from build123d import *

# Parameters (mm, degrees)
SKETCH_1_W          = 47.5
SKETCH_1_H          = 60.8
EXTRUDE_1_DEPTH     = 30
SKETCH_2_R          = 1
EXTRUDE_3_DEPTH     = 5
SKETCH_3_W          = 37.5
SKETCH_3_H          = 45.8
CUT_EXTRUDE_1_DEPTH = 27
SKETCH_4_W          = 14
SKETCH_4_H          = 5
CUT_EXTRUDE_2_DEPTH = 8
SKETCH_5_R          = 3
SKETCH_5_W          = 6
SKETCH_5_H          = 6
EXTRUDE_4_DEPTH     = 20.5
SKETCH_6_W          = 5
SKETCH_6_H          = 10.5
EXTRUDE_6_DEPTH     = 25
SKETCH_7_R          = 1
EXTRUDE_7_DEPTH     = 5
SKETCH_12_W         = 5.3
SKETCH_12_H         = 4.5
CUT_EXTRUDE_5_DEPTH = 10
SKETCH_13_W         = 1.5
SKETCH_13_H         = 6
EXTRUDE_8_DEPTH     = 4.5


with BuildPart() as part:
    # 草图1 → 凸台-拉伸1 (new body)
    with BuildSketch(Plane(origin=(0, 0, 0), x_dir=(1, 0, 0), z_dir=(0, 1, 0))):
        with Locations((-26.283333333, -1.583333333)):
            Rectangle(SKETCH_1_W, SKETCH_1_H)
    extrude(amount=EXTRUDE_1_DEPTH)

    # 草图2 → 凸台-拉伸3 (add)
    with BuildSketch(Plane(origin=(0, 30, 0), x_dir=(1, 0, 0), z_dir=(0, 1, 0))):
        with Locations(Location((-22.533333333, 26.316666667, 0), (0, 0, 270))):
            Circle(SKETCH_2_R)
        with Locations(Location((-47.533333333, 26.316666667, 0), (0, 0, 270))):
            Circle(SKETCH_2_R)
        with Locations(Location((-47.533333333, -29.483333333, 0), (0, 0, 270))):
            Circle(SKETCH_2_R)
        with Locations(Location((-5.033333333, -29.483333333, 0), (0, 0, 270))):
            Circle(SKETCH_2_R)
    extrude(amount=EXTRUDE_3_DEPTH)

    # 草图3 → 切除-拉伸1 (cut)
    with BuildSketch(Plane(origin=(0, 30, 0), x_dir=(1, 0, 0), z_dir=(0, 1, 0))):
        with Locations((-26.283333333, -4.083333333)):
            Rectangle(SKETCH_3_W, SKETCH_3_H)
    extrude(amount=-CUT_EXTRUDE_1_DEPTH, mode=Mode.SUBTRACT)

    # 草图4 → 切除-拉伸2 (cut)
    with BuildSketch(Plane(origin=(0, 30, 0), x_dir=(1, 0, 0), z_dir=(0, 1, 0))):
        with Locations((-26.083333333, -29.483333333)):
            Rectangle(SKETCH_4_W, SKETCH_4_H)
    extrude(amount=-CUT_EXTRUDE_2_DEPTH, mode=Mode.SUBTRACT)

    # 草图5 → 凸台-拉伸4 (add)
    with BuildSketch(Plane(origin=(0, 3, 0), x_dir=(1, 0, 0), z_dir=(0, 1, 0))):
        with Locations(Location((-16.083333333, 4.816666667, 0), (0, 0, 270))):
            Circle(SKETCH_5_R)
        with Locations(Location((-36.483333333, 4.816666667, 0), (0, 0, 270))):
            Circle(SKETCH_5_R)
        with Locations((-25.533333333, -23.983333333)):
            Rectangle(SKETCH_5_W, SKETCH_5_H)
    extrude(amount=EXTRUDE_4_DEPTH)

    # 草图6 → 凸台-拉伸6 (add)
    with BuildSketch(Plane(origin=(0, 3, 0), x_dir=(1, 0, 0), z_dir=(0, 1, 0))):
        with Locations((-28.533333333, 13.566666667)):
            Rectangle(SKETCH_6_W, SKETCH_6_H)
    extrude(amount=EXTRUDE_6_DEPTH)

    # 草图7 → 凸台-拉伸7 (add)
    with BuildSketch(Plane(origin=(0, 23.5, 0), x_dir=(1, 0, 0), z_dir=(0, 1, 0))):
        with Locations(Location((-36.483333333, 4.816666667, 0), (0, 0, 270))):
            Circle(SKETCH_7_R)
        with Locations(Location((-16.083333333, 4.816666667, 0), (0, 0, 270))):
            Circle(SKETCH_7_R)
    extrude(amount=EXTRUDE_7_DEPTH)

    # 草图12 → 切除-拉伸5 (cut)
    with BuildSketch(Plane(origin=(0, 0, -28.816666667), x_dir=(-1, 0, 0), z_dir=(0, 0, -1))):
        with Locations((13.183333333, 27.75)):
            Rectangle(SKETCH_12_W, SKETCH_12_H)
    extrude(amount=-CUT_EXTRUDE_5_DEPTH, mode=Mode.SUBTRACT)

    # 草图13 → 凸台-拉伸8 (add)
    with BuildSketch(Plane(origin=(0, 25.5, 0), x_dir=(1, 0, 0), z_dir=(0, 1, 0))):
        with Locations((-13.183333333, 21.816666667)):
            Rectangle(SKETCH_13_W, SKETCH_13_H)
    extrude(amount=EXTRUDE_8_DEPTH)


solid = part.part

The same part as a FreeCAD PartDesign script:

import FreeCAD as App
import Part
import Sketcher
Q = App.Units.Quantity


def add_polygon(sketch, points):
    """Adds a closed chain of lines whose ends are joined by coincident constraints."""
    first, n = sketch.GeometryCount, len(points)
    for a, b in zip(points, points[1:] + points[:1]):
        sketch.addGeometry(Part.LineSegment(App.Vector(*a, 0), App.Vector(*b, 0)), False)
    for i in range(n):
        sketch.addConstraint(Sketcher.Constraint("Coincident", first + i, 2, first + (i + 1) % n, 1))

doc = App.newDocument("Part")
body = doc.addObject("PartDesign::Body", "Body")

# Sketch on XZ plane
sketch1 = body.newObject("Sketcher::SketchObject", "Sketch")
sketch1.AttachmentSupport = (doc.getObject("XZ_Plane"), [""])
sketch1.MapMode = "FlatFace"
add_polygon(sketch1, [(-50, -29), (-50, 32), (-3, 32), (-3, -29)])  # lines 0-3
sketch1.addConstraint([
    Sketcher.Constraint("Vertical", 0),
    Sketcher.Constraint("Horizontal", 1),
    Sketcher.Constraint("Vertical", 2),
    Sketcher.Constraint("Horizontal", 3),
    Sketcher.Constraint("DistanceX", 1, 1, 1, 2, Q("47.5 mm")),
    Sketcher.Constraint("DistanceY", 0, 1, 0, 2, Q("60.8 mm")),
    Sketcher.Constraint("DistanceX", 0, 2, -1, 1, Q("50.033333 mm")),
    Sketcher.Constraint("DistanceY", -1, 1, 0, 2, Q("31.983333 mm")),
])
pad1 = body.newObject("PartDesign::Pad", "Pad")
pad1.Profile = sketch1
pad1.Length = 30
pad1.Reversed = True

# Sketch on XZ plane
sketch2 = body.newObject("Sketcher::SketchObject", "Sketch001")
sketch2.AttachmentSupport = (doc.getObject("XZ_Plane"), [""])
sketch2.MapMode = "FlatFace"
sketch2.AttachmentOffset = App.Placement(App.Vector(0, 0, -30), App.Rotation())
sketch2.addGeometry([
    Part.Circle(App.Vector(-22.5, -26.3, 0), App.Vector(0, 0, 1), 1),
    Part.Circle(App.Vector(-47.5, -26.3, 0), App.Vector(0, 0, 1), 1),
    Part.Circle(App.Vector(-47.5, 29.5, 0), App.Vector(0, 0, 1), 1),
    Part.Circle(App.Vector(-5, 29.5, 0), App.Vector(0, 0, 1), 1),
], False)
sketch2.addConstraint([
    Sketcher.Constraint("Equal", 0, 1),
    Sketcher.Constraint("Equal", 1, 2),
    Sketcher.Constraint("Equal", 2, 3),
    Sketcher.Constraint("Horizontal", 0, 3, 1, 3),
    Sketcher.Constraint("Horizontal", 2, 3, 3, 3),
    Sketcher.Constraint("Vertical", 1, 3, 2, 3),
    Sketcher.Constraint("Diameter", 0, Q("2 mm")),
    Sketcher.Constraint("DistanceX", 1, 3, 0, 3, Q("25 mm")),
    Sketcher.Constraint("DistanceY", 1, 3, 2, 3, Q("55.8 mm")),
    Sketcher.Constraint("DistanceX", 2, 3, 3, 3, Q("42.5 mm")),
    Sketcher.Constraint("DistanceX", 0, 3, -1, 1, Q("22.533333 mm")),
    Sketcher.Constraint("DistanceY", 0, 3, -1, 1, Q("26.316667 mm")),
])
pad2 = body.newObject("PartDesign::Pad", "Pad001")
pad2.Profile = sketch2
pad2.Length = 5
pad2.Reversed = True

# Sketch on XZ plane
sketch3 = body.newObject("Sketcher::SketchObject", "Sketch002")
sketch3.AttachmentSupport = (doc.getObject("XZ_Plane"), [""])
sketch3.MapMode = "FlatFace"
sketch3.AttachmentOffset = App.Placement(App.Vector(0, 0, -30), App.Rotation())
add_polygon(sketch3, [(-45, -19), (-45, 27), (-8, 27), (-8, -19)])  # lines 0-3
sketch3.addConstraint([
    Sketcher.Constraint("Vertical", 0),
    Sketcher.Constraint("Horizontal", 1),
    Sketcher.Constraint("Vertical", 2),
    Sketcher.Constraint("Horizontal", 3),
    Sketcher.Constraint("DistanceX", 1, 1, 1, 2, Q("37.5 mm")),
    Sketcher.Constraint("DistanceY", 0, 1, 0, 2, Q("45.8 mm")),
    Sketcher.Constraint("DistanceX", 0, 2, -1, 1, Q("45.033333 mm")),
    Sketcher.Constraint("DistanceY", -1, 1, 0, 2, Q("26.983333 mm")),
])
pocket1 = body.newObject("PartDesign::Pocket", "Pocket")
pocket1.Profile = sketch3
pocket1.Length = 27
pocket1.Reversed = True

# Sketch on XZ plane
sketch4 = body.newObject("Sketcher::SketchObject", "Sketch003")
sketch4.AttachmentSupport = (doc.getObject("XZ_Plane"), [""])
sketch4.MapMode = "FlatFace"
sketch4.AttachmentOffset = App.Placement(App.Vector(0, 0, -30), App.Rotation())
add_polygon(sketch4, [(-33, 27), (-33, 32), (-19, 32), (-19, 27)])  # lines 0-3
sketch4.addConstraint([
    Sketcher.Constraint("Vertical", 0),
    Sketcher.Constraint("Horizontal", 1),
    Sketcher.Constraint("Vertical", 2),
    Sketcher.Constraint("Horizontal", 3),
    Sketcher.Constraint("DistanceX", 1, 1, 1, 2, Q("14 mm")),
    Sketcher.Constraint("DistanceY", 0, 1, 0, 2, Q("5 mm")),
    Sketcher.Constraint("DistanceX", 0, 2, -1, 1, Q("33.083333 mm")),
    Sketcher.Constraint("DistanceY", -1, 1, 0, 2, Q("31.983333 mm")),
])
pocket2 = body.newObject("PartDesign::Pocket", "Pocket001")
pocket2.Profile = sketch4
pocket2.Length = 8
pocket2.Reversed = True

# Sketch on XZ plane
sketch5 = body.newObject("Sketcher::SketchObject", "Sketch004")
sketch5.AttachmentSupport = (doc.getObject("XZ_Plane"), [""])
sketch5.MapMode = "FlatFace"
sketch5.AttachmentOffset = App.Placement(App.Vector(0, 0, -3), App.Rotation())
sketch5.addGeometry(Part.Circle(App.Vector(-16.1, -4.8, 0), App.Vector(0, 0, 1), 3), False)  # 0
sketch5.addGeometry(Part.Circle(App.Vector(-36.5, -4.8, 0), App.Vector(0, 0, 1), 3), False)  # 1
add_polygon(sketch5, [(-28.5, 21), (-28.5, 27), (-22.5, 27), (-22.5, 21)])  # lines 2-5
sketch5.addConstraint([
    Sketcher.Constraint("Vertical", 2),
    Sketcher.Constraint("Horizontal", 3),
    Sketcher.Constraint("Vertical", 4),
    Sketcher.Constraint("Horizontal", 5),
    Sketcher.Constraint("Equal", 0, 1),
    Sketcher.Constraint("Horizontal", 0, 3, 1, 3),
    Sketcher.Constraint("Equal", 5, 2),
    Sketcher.Constraint("Diameter", 0, Q("6 mm")),
    Sketcher.Constraint("DistanceX", 3, 1, 3, 2, Q("6 mm")),
    Sketcher.Constraint("DistanceX", 1, 3, 0, 3, Q("20.4 mm")),
    Sketcher.Constraint("DistanceY", 1, 3, 2, 2, Q("31.8 mm")),
    Sketcher.Constraint("DistanceX", 1, 3, 2, 2, Q("7.95 mm")),
    Sketcher.Constraint("DistanceX", 0, 3, -1, 1, Q("16.083333 mm")),
    Sketcher.Constraint("DistanceY", 0, 3, -1, 1, Q("4.816667 mm")),
])
pad3 = body.newObject("PartDesign::Pad", "Pad002")
pad3.Profile = sketch5
pad3.Length = 20.5
pad3.Reversed = True

# Sketch on XZ plane
sketch6 = body.newObject("Sketcher::SketchObject", "Sketch005")
sketch6.AttachmentSupport = (doc.getObject("XZ_Plane"), [""])
sketch6.MapMode = "FlatFace"
sketch6.AttachmentOffset = App.Placement(App.Vector(0, 0, -3), App.Rotation())
add_polygon(sketch6, [(-31, -19), (-31, -8), (-26, -8), (-26, -19)])  # lines 0-3
sketch6.addConstraint([
    Sketcher.Constraint("Vertical", 0),
    Sketcher.Constraint("Horizontal", 1),
    Sketcher.Constraint("Vertical", 2),
    Sketcher.Constraint("Horizontal", 3),
    Sketcher.Constraint("DistanceX", 1, 1, 1, 2, Q("5 mm")),
    Sketcher.Constraint("DistanceY", 0, 1, 0, 2, Q("10.5 mm")),
    Sketcher.Constraint("DistanceX", 0, 2, -1, 1, Q("31.033333 mm")),
    Sketcher.Constraint("DistanceY", 0, 2, -1, 1, Q("8.316667 mm")),
])
pad4 = body.newObject("PartDesign::Pad", "Pad003")
pad4.Profile = sketch6
pad4.Length = 25
pad4.Reversed = True

# Sketch on XZ plane
sketch7 = body.newObject("Sketcher::SketchObject", "Sketch006")
sketch7.AttachmentSupport = (doc.getObject("XZ_Plane"), [""])
sketch7.MapMode = "FlatFace"
sketch7.AttachmentOffset = App.Placement(App.Vector(0, 0, -23.5), App.Rotation())
sketch7.addGeometry([
    Part.Circle(App.Vector(-36.5, -4.8, 0), App.Vector(0, 0, 1), 1),
    Part.Circle(App.Vector(-16.1, -4.8, 0), App.Vector(0, 0, 1), 1),
], False)
sketch7.addConstraint([
    Sketcher.Constraint("Equal", 0, 1),
    Sketcher.Constraint("Horizontal", 0, 3, 1, 3),
    Sketcher.Constraint("Diameter", 0, Q("2 mm")),
    Sketcher.Constraint("DistanceX", 0, 3, 1, 3, Q("20.4 mm")),
    Sketcher.Constraint("DistanceX", 0, 3, -1, 1, Q("36.483333 mm")),
    Sketcher.Constraint("DistanceY", 0, 3, -1, 1, Q("4.816667 mm")),
])
pad5 = body.newObject("PartDesign::Pad", "Pad004")
pad5.Profile = sketch7
pad5.Length = 5
pad5.Reversed = True

# Sketch on XY plane
sketch8 = body.newObject("Sketcher::SketchObject", "Sketch007")
sketch8.AttachmentSupport = (doc.getObject("XY_Plane"), [""])
sketch8.MapMode = "FlatFace"
sketch8.AttachmentOffset = App.Placement(App.Vector(0, 0, -28.816667), App.Rotation())
add_polygon(sketch8, [(-10.5, 30), (-10.5, 25.5), (-15.8, 25.5), (-15.8, 30)])  # lines 0-3
sketch8.addConstraint([
    Sketcher.Constraint("Vertical", 0),
    Sketcher.Constraint("Horizontal", 1),
    Sketcher.Constraint("Vertical", 2),
    Sketcher.Constraint("Horizontal", 3),
    Sketcher.Constraint("DistanceX", 1, 2, 1, 1, Q("5.3 mm")),
    Sketcher.Constraint("DistanceY", 0, 2, 0, 1, Q("4.5 mm")),
    Sketcher.Constraint("DistanceY", -1, 1, 2, 2, Q("30 mm")),
    Sketcher.Constraint("DistanceX", 0, 2, -1, 1, Q("10.533333 mm")),
])
pocket3 = body.newObject("PartDesign::Pocket", "Pocket002")
pocket3.Profile = sketch8
pocket3.Length = 10
pocket3.Reversed = True

# Sketch on XZ plane
sketch9 = body.newObject("Sketcher::SketchObject", "Sketch008")
sketch9.AttachmentSupport = (doc.getObject("XZ_Plane"), [""])
sketch9.MapMode = "FlatFace"
sketch9.AttachmentOffset = App.Placement(App.Vector(0, 0, -25.5), App.Rotation())
add_polygon(sketch9, [(-13.9, -24.8), (-13.9, -18.8), (-12.4, -18.8), (-12.4, -24.8)])  # lines 0-3
sketch9.addConstraint([
    Sketcher.Constraint("Vertical", 0),
    Sketcher.Constraint("Horizontal", 1),
    Sketcher.Constraint("Vertical", 2),
    Sketcher.Constraint("Horizontal", 3),
    Sketcher.Constraint("DistanceY", 0, 1, 0, 2, Q("6 mm")),
    Sketcher.Constraint("DistanceX", 1, 1, 1, 2, Q("1.5 mm")),
    Sketcher.Constraint("DistanceX", 0, 2, -1, 1, Q("13.933333 mm")),
    Sketcher.Constraint("DistanceY", 0, 2, -1, 1, Q("18.816667 mm")),
])
pad6 = body.newObject("PartDesign::Pad", "Pad005")
pad6.Profile = sketch9
pad6.Length = 4.5
pad6.Reversed = True

doc.recompute()
